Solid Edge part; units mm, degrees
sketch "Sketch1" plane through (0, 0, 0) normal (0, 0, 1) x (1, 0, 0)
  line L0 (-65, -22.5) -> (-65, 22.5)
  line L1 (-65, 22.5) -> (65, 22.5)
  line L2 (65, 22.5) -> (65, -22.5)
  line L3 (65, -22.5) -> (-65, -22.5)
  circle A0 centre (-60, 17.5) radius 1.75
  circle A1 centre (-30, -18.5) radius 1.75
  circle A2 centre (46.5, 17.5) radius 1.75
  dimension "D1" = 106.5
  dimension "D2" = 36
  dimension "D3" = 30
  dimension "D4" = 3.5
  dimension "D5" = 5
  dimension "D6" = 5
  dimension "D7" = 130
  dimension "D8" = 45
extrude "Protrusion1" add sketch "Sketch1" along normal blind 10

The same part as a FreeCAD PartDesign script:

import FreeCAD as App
import Part
import Sketcher


def add_polygon(sketch, points):
    """Adds a closed chain of lines whose ends are joined by coincident constraints."""
    first, n = sketch.GeometryCount, len(points)
    for a, b in zip(points, points[1:] + points[:1]):
        sketch.addGeometry(Part.LineSegment(App.Vector(*a, 0), App.Vector(*b, 0)), False)
    for i in range(n):
        sketch.addConstraint(Sketcher.Constraint("Coincident", first + i, 2, first + (i + 1) % n, 1))

doc = App.newDocument("Part")
body = doc.addObject("PartDesign::Body", "Body")

# Sketch on XY plane
sketch1 = doc.addObject("Sketcher::SketchObject", "Sketch")
body.addObject(sketch1)
sketch1.AttachmentSupport = (doc.XY_Plane, [""])
sketch1.MapMode = "FlatFace"
add_polygon(sketch1, [(-65, 22.5), (-65, -22.5), (65, -22.5), (65, 22.5)])  # lines 0-3
sketch1.addGeometry(Part.Circle(App.Vector(-30, -18.5, 0), App.Vector(0, 0, 1), 1.8), False)  # 4
sketch1.addGeometry(Part.Circle(App.Vector(-60, 17.5, 0), App.Vector(0, 0, 1), 1.8), False)  # 5
sketch1.addGeometry(Part.Circle(App.Vector(46.5, 17.5, 0), App.Vector(0, 0, 1), 1.8), False)  # 6
sketch1.addConstraint([
    Sketcher.Constraint("Vertical", 0),
    Sketcher.Constraint("Horizontal", 1),
    Sketcher.Constraint("Vertical", 2),
    Sketcher.Constraint("Horizontal", 3),
    Sketcher.Constraint("Equal", 4, 5),
    Sketcher.Constraint("Equal", 5, 6),
    Sketcher.Constraint("Symmetric", 0, 2, 2, 2, -1, 1),
    Sketcher.Constraint("Horizontal", 5, 3, 6, 3),
    Sketcher.Constraint("Diameter", 4, 3.5),
    Sketcher.Constraint("DistanceX", 1, 1, 1, 2, 130.0),
    Sketcher.Constraint("DistanceY", 0, 2, 0, 1, 45.0),
    Sketcher.Constraint("DistanceX", 4, 3, -1, 1, 30.0),
    Sketcher.Constraint("DistanceX", 5, 3, -1, 1, 60.0),
    Sketcher.Constraint("DistanceY", 4, 3, 5, 3, 36.0),
    Sketcher.Constraint("DistanceY", 0, 2, 4, 3, 4.0),
    Sketcher.Constraint("DistanceX", -1, 1, 6, 3, 46.5),
])
pad1 = doc.addObject("PartDesign::Pad", "Pad")
body.addObject(pad1)
pad1.Profile = sketch1
pad1.Length = 10

doc.recompute()
